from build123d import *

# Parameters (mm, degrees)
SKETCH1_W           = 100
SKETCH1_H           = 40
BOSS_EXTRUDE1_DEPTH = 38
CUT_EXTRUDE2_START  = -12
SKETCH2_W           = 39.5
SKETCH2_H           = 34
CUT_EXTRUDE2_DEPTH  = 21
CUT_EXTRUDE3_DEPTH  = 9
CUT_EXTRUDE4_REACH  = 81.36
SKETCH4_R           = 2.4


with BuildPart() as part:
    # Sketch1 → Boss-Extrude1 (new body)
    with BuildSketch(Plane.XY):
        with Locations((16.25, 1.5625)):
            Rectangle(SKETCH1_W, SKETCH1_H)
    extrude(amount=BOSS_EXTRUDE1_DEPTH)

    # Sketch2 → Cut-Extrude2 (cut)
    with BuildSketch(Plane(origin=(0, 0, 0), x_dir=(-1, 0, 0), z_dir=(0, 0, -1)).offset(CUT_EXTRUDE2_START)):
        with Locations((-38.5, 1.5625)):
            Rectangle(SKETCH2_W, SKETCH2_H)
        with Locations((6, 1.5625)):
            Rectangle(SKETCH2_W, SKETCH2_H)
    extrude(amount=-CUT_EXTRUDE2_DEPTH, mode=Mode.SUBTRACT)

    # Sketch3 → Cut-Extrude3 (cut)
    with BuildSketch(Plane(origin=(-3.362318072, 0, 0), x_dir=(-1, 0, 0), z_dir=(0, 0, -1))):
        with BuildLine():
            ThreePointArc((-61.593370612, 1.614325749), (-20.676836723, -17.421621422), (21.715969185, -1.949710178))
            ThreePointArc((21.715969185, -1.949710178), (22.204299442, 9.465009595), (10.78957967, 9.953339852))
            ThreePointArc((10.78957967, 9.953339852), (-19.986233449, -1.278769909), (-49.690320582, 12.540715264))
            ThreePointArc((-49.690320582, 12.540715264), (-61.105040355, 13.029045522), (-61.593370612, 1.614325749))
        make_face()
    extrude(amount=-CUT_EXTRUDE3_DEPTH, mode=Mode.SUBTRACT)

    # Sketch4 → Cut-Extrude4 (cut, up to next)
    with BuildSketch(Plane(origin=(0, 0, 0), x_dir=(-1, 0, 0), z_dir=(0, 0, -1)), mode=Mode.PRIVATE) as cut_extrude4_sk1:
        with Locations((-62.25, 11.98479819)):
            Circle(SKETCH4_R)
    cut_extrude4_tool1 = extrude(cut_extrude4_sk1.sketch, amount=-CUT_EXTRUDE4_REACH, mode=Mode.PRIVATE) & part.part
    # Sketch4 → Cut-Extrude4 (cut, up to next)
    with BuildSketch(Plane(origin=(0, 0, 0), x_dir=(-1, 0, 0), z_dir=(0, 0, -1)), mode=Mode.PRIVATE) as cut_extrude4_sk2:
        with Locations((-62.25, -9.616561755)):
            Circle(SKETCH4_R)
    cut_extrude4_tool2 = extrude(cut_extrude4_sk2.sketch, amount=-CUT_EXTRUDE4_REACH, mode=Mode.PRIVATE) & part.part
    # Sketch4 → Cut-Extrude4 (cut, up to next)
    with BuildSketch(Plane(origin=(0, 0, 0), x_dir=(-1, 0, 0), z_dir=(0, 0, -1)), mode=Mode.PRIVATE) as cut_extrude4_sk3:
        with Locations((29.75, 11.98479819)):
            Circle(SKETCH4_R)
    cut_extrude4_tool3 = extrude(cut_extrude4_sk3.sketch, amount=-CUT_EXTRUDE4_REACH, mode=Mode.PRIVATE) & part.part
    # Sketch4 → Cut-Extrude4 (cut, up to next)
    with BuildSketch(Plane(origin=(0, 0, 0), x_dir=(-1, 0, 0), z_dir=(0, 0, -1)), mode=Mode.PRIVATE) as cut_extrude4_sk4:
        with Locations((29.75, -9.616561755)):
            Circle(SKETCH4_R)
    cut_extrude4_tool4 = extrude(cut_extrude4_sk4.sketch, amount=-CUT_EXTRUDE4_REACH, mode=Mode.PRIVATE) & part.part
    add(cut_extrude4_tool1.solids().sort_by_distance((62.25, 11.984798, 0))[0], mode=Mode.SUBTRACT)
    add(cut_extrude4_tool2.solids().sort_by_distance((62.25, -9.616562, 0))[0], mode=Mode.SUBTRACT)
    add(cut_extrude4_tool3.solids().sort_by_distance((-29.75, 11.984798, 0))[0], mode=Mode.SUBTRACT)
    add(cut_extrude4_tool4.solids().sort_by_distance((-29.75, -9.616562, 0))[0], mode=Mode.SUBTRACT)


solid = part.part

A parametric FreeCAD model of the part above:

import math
import FreeCAD as App
import Part
import Sketcher
from FreeCAD import Vector


def add_polygon(sketch, points):
    """Adds a closed chain of lines whose ends are joined by coincident constraints."""
    first, n = sketch.GeometryCount, len(points)
    for a, b in zip(points, points[1:] + points[:1]):
        sketch.addGeometry(Part.LineSegment(App.Vector(*a, 0), App.Vector(*b, 0)), False)
    for i in range(n):
        sketch.addConstraint(Sketcher.Constraint("Coincident", first + i, 2, first + (i + 1) % n, 1))

doc = App.newDocument("Part")
body = doc.addObject("PartDesign::Body", "Body")

# Sketch on XY plane
sketch1 = body.newObject("Sketcher::SketchObject", "Sketch")
sketch1.AttachmentSupport = (doc.getObject("XY_Plane"), [""])
sketch1.MapMode = "FlatFace"
add_polygon(sketch1, [(-34, 22), (-34, -18), (66, -18), (66, 22)])  # lines 0-3
sketch1.addConstraint([
    Sketcher.Constraint("Vertical", 0),
    Sketcher.Constraint("Horizontal", 1),
    Sketcher.Constraint("Vertical", 2),
    Sketcher.Constraint("Horizontal", 3),
    Sketcher.Constraint("DistanceX", 1, 1, 1, 2, 100.0),
    Sketcher.Constraint("DistanceY", 0, 2, 0, 1, 40.0),
    Sketcher.Constraint("DistanceX", 0, 2, -1, 1, 33.75),
    Sketcher.Constraint("DistanceY", 0, 2, -1, 1, 18.4375),
])
pad1 = body.newObject("PartDesign::Pad", "Pad")
pad1.Profile = sketch1
pad1.Length = 38

# Sketch on XY plane
sketch2 = body.newObject("Sketcher::SketchObject", "Sketch001")
sketch2.AttachmentSupport = (doc.getObject("XY_Plane"), [""])
sketch2.MapMode = "FlatFace"
sketch2.AttachmentOffset = App.Placement(Vector(0, 0, 12), App.Rotation())
add_polygon(sketch2, [(58, 19), (58, -15), (19, -15), (19, 19)])  # lines 0-3
add_polygon(sketch2, [(14, 19), (14, -15), (-26, -15), (-26, 19)])  # lines 4-7
sketch2.addConstraint([
    Sketcher.Constraint("Vertical", 0),
    Sketcher.Constraint("Horizontal", 1),
    Sketcher.Constraint("Vertical", 2),
    Sketcher.Constraint("Horizontal", 3),
    Sketcher.Constraint("Vertical", 4),
    Sketcher.Constraint("Horizontal", 5),
    Sketcher.Constraint("Vertical", 6),
    Sketcher.Constraint("Horizontal", 7),
    Sketcher.Constraint("Horizontal", 1, 2, 4, 2),
    Sketcher.Constraint("Horizontal", 3, 2, 6, 2),
    Sketcher.Constraint("Equal", 3, 5),
    Sketcher.Constraint("DistanceY", 0, 2, 0, 1, 34.0),
    Sketcher.Constraint("DistanceX", 1, 2, 1, 1, 39.5),
    Sketcher.Constraint("DistanceX", 4, 2, 1, 2, 5.0),
    Sketcher.Constraint("DistanceX", -1, 1, 0, 2, 58.25),
    Sketcher.Constraint("DistanceY", 0, 2, -1, 1, 15.4375),
])
pocket1 = body.newObject("PartDesign::Pocket", "Pocket")
pocket1.Profile = sketch2
pocket1.Length = 21
pocket1.Reversed = True

# Sketch on XY plane
sketch3 = body.newObject("Sketcher::SketchObject", "Sketch002")
sketch3.AttachmentSupport = (doc.getObject("XY_Plane"), [""])
sketch3.MapMode = "FlatFace"
sketch3.addGeometry([
    Part.ArcOfCircle(Part.Circle(Vector(15, 41, 0), Vector(0, 0, 1), 59), math.radians(-133), math.radians(-43)),
    Part.ArcOfCircle(Part.Circle(Vector(-20, 4, 0), Vector(0, 0, 1), 8), math.radians(47), math.radians(227)),
    Part.ArcOfCircle(Part.Circle(Vector(15, 41, 0), Vector(0, 0, 1), 43), math.radians(-133), math.radians(-43)),
    Part.ArcOfCircle(Part.Circle(Vector(52, 7, 0), Vector(0, 0, 1), 8), math.radians(-43), math.radians(137)),
], False)
sketch3.addConstraint([
    Sketcher.Constraint("Tangent", 0, 1, 1, 2),
    Sketcher.Constraint("Tangent", 1, 1, 2, 1),
    Sketcher.Constraint("Tangent", 2, 2, 3, 2),
    Sketcher.Constraint("Tangent", 3, 1, 0, 2),
    Sketcher.Constraint("Coincident", 2, 3, 0, 3),
    Sketcher.Constraint("Radius", 0, 58.962482),
    Sketcher.Constraint("Radius", 1, 8.078809),
    Sketcher.Constraint("DistanceX", 1, 1, 2, 2, 60.4799),
    Sketcher.Constraint("DistanceY", 1, 3, 2, 2, 8.5389),
    Sketcher.Constraint("DistanceY", -1, 1, 3, 3, 7.077521),
    Sketcher.Constraint("DistanceX", -1, 1, 0, 3, 14.794365),
])
pocket2 = body.newObject("PartDesign::Pocket", "Pocket001")
pocket2.Profile = sketch3
pocket2.Length = 9
pocket2.Reversed = True

# Sketch on XY plane
sketch4 = body.newObject("Sketcher::SketchObject", "Sketch003")
sketch4.AttachmentSupport = (doc.getObject("XY_Plane"), [""])
sketch4.MapMode = "FlatFace"
sketch4.addGeometry(Part.Circle(Vector(62.2, 12, 0), Vector(0, 0, 1), 2.4), False)
sketch4.addConstraint([
    Sketcher.Constraint("Diameter", 0, 4.8),
    Sketcher.Constraint("DistanceX", -1, 1, 0, 3, 62.25),
    Sketcher.Constraint("DistanceY", -1, 1, 0, 3, 11.984798),
])
pocket3 = body.newObject("PartDesign::Pocket", "Pocket002")
pocket3.Profile = sketch4
pocket3.Type = "UpToFirst"
pocket3.Reversed = True

# Sketch on XY plane
sketch5 = body.newObject("Sketcher::SketchObject", "Sketch004")
sketch5.AttachmentSupport = (doc.getObject("XY_Plane"), [""])
sketch5.MapMode = "FlatFace"
sketch5.addGeometry(Part.Circle(Vector(62.2, -9.6, 0), Vector(0, 0, 1), 2.4), False)
sketch5.addConstraint([
    Sketcher.Constraint("Diameter", 0, 4.8),
    Sketcher.Constraint("DistanceX", -1, 1, 0, 3, 62.25),
    Sketcher.Constraint("DistanceY", 0, 3, -1, 1, 9.616562),
])
pocket4 = body.newObject("PartDesign::Pocket", "Pocket003")
pocket4.Profile = sketch5
pocket4.Type = "UpToFirst"
pocket4.Reversed = True

# Sketch on XY plane
sketch6 = body.newObject("Sketcher::SketchObject", "Sketch005")
sketch6.AttachmentSupport = (doc.getObject("XY_Plane"), [""])
sketch6.MapMode = "FlatFace"
sketch6.addGeometry(Part.Circle(Vector(-29.8, 12, 0), Vector(0, 0, 1), 2.4), False)
sketch6.addConstraint([
    Sketcher.Constraint("Diameter", 0, 4.8),
    Sketcher.Constraint("DistanceX", 0, 3, -1, 1, 29.75),
    Sketcher.Constraint("DistanceY", -1, 1, 0, 3, 11.984798),
])
pocket5 = body.newObject("PartDesign::Pocket", "Pocket004")
pocket5.Profile = sketch6
pocket5.Type = "UpToFirst"
pocket5.Reversed = True

# Sketch on XY plane
sketch7 = body.newObject("Sketcher::SketchObject", "Sketch006")
sketch7.AttachmentSupport = (doc.getObject("XY_Plane"), [""])
sketch7.MapMode = "FlatFace"
sketch7.addGeometry(Part.Circle(Vector(-29.8, -9.6, 0), Vector(0, 0, 1), 2.4), False)
sketch7.addConstraint([
    Sketcher.Constraint("Diameter", 0, 4.8),
    Sketcher.Constraint("DistanceX", 0, 3, -1, 1, 29.75),
    Sketcher.Constraint("DistanceY", 0, 3, -1, 1, 9.616562),
])
pocket6 = body.newObject("PartDesign::Pocket", "Pocket005")
pocket6.Profile = sketch7
pocket6.Type = "UpToFirst"
pocket6.Reversed = True

doc.recompute()
